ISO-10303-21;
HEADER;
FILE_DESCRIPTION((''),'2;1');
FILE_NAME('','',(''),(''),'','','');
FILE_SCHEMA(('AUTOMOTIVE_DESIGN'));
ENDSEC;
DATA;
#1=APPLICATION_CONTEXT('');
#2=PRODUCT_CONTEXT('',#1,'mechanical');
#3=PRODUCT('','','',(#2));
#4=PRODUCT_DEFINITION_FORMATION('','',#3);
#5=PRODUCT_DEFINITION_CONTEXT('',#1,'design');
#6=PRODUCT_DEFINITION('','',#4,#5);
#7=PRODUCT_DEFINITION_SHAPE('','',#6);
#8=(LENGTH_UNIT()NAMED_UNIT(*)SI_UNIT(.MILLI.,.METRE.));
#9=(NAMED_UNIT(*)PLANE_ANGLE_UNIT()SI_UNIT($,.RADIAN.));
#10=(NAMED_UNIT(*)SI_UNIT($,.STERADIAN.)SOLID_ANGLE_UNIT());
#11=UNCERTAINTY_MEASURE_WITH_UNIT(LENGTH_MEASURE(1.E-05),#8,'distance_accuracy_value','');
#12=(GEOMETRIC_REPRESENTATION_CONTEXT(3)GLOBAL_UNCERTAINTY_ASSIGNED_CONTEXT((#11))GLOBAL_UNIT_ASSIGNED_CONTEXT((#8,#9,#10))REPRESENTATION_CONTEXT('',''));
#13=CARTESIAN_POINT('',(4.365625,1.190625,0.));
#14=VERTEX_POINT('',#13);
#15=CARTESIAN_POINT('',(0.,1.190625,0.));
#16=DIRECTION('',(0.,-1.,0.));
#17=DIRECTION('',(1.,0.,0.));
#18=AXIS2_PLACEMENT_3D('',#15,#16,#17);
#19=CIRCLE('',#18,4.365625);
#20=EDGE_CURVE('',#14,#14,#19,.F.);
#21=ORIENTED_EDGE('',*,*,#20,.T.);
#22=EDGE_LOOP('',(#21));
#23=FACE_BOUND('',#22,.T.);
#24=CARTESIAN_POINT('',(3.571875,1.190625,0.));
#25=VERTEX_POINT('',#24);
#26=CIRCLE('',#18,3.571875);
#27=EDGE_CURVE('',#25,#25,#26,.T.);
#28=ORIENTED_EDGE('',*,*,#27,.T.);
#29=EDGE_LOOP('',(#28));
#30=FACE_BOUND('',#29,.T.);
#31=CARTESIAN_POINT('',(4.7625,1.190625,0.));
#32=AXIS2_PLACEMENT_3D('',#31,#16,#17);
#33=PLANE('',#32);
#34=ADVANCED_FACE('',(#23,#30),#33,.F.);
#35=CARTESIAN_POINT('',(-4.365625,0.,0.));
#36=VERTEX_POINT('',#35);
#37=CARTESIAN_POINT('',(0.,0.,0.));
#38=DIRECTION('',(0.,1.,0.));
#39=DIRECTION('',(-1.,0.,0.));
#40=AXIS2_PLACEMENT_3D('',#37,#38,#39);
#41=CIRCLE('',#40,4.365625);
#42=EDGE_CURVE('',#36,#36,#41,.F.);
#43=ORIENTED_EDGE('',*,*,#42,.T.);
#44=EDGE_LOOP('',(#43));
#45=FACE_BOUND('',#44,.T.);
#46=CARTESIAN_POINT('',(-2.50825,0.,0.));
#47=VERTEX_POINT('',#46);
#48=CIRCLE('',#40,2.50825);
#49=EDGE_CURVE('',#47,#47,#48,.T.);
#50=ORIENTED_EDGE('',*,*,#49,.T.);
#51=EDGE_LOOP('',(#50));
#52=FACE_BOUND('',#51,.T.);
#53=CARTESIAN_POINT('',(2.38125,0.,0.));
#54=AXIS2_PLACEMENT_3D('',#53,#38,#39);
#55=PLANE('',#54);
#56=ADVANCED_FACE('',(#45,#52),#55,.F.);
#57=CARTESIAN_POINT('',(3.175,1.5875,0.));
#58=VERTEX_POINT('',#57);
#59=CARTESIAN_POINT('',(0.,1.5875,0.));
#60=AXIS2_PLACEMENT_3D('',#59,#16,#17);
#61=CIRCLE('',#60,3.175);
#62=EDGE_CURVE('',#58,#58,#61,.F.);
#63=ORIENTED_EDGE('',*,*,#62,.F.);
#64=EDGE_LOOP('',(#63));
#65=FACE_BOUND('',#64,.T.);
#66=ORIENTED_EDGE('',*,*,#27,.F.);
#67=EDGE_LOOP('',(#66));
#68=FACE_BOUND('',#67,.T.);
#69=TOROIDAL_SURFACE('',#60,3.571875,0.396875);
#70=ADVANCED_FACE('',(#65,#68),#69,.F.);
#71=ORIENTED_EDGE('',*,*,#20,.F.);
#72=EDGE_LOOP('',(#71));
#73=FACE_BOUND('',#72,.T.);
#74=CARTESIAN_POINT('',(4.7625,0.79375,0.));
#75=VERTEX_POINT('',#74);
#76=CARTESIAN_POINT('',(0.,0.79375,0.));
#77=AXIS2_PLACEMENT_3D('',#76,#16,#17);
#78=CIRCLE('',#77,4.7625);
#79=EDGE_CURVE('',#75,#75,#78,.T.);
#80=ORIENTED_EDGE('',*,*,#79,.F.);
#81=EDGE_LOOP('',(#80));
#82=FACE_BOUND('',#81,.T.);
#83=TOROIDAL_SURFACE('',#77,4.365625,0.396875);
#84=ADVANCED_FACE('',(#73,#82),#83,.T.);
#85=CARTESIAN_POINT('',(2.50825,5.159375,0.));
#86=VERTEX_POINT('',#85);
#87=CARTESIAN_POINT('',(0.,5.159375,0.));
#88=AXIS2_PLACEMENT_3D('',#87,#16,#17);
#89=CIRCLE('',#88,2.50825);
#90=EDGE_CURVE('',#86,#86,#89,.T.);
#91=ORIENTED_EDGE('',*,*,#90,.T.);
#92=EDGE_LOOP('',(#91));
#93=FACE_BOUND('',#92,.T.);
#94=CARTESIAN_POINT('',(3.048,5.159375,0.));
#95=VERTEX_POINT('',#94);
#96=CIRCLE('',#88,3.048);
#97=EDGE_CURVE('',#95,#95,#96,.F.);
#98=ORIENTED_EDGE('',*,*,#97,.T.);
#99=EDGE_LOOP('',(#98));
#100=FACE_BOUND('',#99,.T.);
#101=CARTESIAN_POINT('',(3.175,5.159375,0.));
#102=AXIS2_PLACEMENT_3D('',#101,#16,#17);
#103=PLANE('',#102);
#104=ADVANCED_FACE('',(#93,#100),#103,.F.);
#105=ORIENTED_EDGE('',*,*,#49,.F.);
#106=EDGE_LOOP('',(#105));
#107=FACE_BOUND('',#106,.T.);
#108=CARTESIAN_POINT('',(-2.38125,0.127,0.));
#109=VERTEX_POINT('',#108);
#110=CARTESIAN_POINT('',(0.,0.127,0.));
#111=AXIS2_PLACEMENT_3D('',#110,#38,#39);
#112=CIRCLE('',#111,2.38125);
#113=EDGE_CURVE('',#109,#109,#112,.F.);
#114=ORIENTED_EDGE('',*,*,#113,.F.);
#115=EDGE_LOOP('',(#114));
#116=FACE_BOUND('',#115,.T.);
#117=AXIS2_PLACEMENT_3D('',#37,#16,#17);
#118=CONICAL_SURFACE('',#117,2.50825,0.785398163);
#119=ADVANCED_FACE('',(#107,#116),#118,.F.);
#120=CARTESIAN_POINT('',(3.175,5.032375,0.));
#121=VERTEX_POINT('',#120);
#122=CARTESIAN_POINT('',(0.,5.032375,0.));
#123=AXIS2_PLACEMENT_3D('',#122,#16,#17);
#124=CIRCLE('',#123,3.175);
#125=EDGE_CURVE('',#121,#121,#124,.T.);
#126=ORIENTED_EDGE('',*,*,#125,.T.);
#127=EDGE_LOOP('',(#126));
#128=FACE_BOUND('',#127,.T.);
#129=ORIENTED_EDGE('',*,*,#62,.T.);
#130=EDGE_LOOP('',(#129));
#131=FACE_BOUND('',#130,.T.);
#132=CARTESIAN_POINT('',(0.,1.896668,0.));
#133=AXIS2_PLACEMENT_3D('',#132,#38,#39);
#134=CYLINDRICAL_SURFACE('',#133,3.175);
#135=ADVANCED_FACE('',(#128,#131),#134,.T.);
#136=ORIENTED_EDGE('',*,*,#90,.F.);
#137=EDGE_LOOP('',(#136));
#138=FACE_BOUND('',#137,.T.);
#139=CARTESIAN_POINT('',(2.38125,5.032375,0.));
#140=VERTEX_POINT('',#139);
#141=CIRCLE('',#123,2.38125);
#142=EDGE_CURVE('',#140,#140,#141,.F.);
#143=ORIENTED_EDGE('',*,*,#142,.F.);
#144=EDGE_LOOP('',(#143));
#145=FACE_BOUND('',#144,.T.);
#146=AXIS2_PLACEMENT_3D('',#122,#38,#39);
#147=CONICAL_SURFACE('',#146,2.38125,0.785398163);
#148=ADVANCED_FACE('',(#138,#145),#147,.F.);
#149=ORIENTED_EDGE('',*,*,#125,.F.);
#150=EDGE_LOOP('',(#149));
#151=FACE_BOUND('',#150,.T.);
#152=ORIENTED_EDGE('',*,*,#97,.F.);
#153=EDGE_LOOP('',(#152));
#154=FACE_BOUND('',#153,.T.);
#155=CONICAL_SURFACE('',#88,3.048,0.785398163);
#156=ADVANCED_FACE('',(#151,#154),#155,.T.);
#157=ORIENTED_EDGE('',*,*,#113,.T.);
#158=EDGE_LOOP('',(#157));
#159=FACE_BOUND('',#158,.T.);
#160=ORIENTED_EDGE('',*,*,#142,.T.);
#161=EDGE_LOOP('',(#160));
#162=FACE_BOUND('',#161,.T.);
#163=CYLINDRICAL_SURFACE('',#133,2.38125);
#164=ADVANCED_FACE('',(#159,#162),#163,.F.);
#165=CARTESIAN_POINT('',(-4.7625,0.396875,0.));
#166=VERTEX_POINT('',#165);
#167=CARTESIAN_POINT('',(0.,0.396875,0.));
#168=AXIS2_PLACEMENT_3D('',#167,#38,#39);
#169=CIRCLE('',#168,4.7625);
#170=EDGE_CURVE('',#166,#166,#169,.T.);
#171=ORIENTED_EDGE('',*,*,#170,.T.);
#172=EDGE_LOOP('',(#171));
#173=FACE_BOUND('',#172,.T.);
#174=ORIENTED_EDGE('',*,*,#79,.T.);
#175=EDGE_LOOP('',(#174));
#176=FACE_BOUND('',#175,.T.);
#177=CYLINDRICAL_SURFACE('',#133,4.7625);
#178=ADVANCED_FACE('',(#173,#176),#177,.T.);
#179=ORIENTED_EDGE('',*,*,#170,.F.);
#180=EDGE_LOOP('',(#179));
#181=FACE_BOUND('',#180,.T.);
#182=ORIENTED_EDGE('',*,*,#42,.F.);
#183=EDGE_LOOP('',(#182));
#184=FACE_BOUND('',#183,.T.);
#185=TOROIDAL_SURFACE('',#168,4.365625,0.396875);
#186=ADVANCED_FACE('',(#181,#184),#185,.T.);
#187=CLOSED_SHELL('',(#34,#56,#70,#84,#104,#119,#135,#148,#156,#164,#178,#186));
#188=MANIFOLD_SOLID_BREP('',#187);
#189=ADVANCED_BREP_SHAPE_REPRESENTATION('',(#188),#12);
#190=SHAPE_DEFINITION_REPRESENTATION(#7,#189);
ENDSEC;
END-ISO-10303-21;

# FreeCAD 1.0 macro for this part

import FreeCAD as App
import Part
import Sketcher
Q = App.Units.Quantity


def edges_at(feature, points):
    """Names of the edges that pass closest to the given points."""
    edges = feature.Shape.Edges
    near = lambda p: min(range(len(edges)), key=lambda i: edges[i].distToShape(Part.Vertex(*p))[0])
    return sorted({f"Edge{near(p) + 1}" for p in points})

doc = App.newDocument("Part")
body = doc.addObject("PartDesign::Body", "Body")

# Sketch on XY plane
sketch1 = doc.addObject("Sketcher::SketchObject", "Sketch")
body.addObject(sketch1)
sketch1.AttachmentSupport = (doc.XY_Plane, [""])
sketch1.MapMode = "FlatFace"
sketch1.addGeometry([
    Part.LineSegment(App.Vector(2.4, 0, 0), App.Vector(4.8, 0, 0)),  # 0
    Part.LineSegment(App.Vector(4.8, 0, 0), App.Vector(4.8, 1.2, 0)),  # 1
    Part.LineSegment(App.Vector(4.8, 1.2, 0), App.Vector(3.2, 1.2, 0)),  # 2
    Part.LineSegment(App.Vector(3.2, 1.2, 0), App.Vector(3.2, 5.2, 0)),  # 3
    Part.LineSegment(App.Vector(3.2, 5.2, 0), App.Vector(2.4, 5.2, 0)),  # 4
    Part.LineSegment(App.Vector(2.4, 5.2, 0), App.Vector(2.4, 0, 0)),  # 5
], False)
sketch1.addConstraint([
    Sketcher.Constraint("Coincident", 0, 2, 1, 1),
    Sketcher.Constraint("Coincident", 1, 2, 2, 1),
    Sketcher.Constraint("Coincident", 2, 2, 3, 1),
    Sketcher.Constraint("Coincident", 3, 2, 4, 1),
    Sketcher.Constraint("Coincident", 4, 2, 5, 1),
    Sketcher.Constraint("Coincident", 5, 2, 0, 1),
    Sketcher.Constraint("Horizontal", 0),
    Sketcher.Constraint("Vertical", 1),
    Sketcher.Constraint("Horizontal", 2),
    Sketcher.Constraint("Vertical", 3),
    Sketcher.Constraint("Horizontal", 4),
    Sketcher.Constraint("Vertical", 5),
    Sketcher.Constraint("PointOnObject", 0, 2, -1),
    Sketcher.Constraint("DistanceX", 0, 1, 0, 2, Q("0.09375 in")),
    Sketcher.Constraint("DistanceX", 2, 2, 2, 1, Q("0.0625 in")),
    Sketcher.Constraint("DistanceY", 1, 1, 1, 2, Q("0.046875 in")),
    Sketcher.Constraint("DistanceY", 3, 1, 3, 2, Q("0.15625 in")),
    Sketcher.Constraint("DistanceX", -1, 1, 0, 2, Q("0.1875 in")),
])
revolution = doc.addObject("PartDesign::Revolution", "Revolution")
body.addObject(revolution)
revolution.Profile = sketch1
revolution.ReferenceAxis = (sketch1, ["V_Axis"])
revolution.Angle = 360
doc.recompute()

fillet = doc.addObject("PartDesign::Fillet", "Fillet")
body.addObject(fillet)
fillet.Base = (revolution, edges_at(revolution, [(-3.175, 1.191, 0), (-4.763, 1.191, 0), (-4.763, 0, 0)]))
fillet.Radius = Q("0.015625 in")
doc.recompute()

chamfer = doc.addObject("PartDesign::Chamfer", "Chamfer")
body.addObject(chamfer)
chamfer.Base = (fillet, edges_at(fillet, [(-2.381, 5.159, 0), (-3.175, 5.159, 0), (-2.381, 0, 0)]))
chamfer.Size = Q("0.005 in")

doc.recompute()
